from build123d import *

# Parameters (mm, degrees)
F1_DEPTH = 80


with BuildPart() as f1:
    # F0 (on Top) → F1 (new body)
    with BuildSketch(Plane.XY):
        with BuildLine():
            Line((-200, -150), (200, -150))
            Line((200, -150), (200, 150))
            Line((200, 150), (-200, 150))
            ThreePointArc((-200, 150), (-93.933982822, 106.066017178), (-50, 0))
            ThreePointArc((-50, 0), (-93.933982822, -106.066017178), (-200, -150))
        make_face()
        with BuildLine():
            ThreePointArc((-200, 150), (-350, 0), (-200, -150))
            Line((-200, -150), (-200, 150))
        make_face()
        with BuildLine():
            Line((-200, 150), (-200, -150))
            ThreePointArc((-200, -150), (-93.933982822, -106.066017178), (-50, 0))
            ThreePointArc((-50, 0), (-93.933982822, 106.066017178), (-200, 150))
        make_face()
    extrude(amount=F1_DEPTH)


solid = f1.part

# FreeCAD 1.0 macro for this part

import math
import FreeCAD as App
import Part
import Sketcher

doc = App.newDocument("Part")
body = doc.addObject("PartDesign::Body", "Body")

# Sketch on XY plane
sketch1 = body.newObject("Sketcher::SketchObject", "Sketch")
sketch1.AttachmentSupport = (doc.getObject("XY_Plane"), [""])
sketch1.MapMode = "FlatFace"
sketch1.addGeometry([
    Part.LineSegment(App.Vector(-200, -150, 0), App.Vector(200, -150, 0)),
    Part.LineSegment(App.Vector(200, -150, 0), App.Vector(200, 150, 0)),
    Part.LineSegment(App.Vector(200, 150, 0), App.Vector(-200, 150, 0)),
    Part.ArcOfCircle(Part.Circle(App.Vector(-200, 0, 0), App.Vector(0, 0, 1), 150), math.radians(90), math.radians(270)),
], False)
sketch1.addConstraint([
    Sketcher.Constraint("Coincident", 0, 2, 1, 1),
    Sketcher.Constraint("Coincident", 1, 2, 2, 1),
    Sketcher.Constraint("Tangent", 2, 2, 3, 1),
    Sketcher.Constraint("Tangent", 3, 2, 0, 1),
    Sketcher.Constraint("Horizontal", 0),
    Sketcher.Constraint("Vertical", 1),
    Sketcher.Constraint("Horizontal", 2),
    Sketcher.Constraint("Symmetric", 0, 2, 2, 2, -1, 1),
    Sketcher.Constraint("Radius", 3, 150.0),
    Sketcher.Constraint("DistanceX", 0, 1, 0, 2, 400.0),
])
pad1 = body.newObject("PartDesign::Pad", "Pad")
pad1.Profile = sketch1
pad1.Length = 80

doc.recompute()
